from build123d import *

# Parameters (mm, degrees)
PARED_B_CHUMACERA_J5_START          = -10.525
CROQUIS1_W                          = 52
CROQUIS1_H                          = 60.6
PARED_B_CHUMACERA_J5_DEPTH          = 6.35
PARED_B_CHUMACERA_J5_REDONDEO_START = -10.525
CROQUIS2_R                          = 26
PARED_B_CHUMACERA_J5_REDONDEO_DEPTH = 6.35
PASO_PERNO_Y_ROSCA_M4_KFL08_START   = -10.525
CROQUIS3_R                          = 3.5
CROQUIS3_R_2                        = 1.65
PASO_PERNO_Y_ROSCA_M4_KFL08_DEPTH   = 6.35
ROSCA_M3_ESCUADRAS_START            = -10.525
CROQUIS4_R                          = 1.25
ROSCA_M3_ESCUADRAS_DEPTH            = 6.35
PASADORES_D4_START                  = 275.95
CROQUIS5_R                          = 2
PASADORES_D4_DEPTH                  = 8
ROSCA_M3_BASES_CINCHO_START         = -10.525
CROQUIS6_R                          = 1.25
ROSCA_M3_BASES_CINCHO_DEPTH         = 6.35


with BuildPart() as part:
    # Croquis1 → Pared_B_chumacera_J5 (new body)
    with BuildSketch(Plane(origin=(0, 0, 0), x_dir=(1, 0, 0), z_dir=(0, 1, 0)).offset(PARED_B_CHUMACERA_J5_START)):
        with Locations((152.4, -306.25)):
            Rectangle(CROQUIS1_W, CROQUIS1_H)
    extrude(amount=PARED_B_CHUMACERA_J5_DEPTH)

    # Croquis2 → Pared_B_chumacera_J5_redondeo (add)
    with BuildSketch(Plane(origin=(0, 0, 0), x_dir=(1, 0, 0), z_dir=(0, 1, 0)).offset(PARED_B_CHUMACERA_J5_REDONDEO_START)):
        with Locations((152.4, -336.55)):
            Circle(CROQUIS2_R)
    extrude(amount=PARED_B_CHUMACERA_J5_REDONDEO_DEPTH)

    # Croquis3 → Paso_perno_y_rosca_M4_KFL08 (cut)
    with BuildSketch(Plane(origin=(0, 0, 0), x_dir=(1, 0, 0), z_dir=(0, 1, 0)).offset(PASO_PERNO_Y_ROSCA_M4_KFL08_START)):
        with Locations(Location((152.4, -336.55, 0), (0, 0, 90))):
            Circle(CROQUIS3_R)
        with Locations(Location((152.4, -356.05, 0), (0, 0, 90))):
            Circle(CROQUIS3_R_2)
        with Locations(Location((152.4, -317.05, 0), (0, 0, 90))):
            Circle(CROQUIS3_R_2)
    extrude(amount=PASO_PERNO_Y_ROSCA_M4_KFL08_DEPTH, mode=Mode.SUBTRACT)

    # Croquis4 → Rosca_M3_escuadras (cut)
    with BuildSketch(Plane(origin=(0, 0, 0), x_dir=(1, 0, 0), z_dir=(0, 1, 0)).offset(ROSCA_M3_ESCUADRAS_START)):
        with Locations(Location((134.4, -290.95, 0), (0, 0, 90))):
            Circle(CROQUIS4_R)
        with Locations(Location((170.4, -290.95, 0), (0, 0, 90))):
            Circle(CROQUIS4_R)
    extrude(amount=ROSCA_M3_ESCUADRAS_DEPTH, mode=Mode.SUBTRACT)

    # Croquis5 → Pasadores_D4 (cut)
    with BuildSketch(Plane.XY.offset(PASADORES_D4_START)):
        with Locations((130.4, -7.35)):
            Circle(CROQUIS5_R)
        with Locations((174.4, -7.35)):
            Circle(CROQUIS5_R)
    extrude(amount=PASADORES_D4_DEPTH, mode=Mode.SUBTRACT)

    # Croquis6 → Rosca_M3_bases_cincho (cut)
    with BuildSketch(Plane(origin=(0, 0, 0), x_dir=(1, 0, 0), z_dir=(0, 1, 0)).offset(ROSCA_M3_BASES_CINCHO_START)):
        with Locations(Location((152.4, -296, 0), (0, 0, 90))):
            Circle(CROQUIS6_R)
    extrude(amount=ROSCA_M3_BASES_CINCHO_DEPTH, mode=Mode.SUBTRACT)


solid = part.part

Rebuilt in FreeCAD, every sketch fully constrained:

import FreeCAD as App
import Part
import Sketcher
from FreeCAD import Vector
Q = App.Units.Quantity

doc = App.newDocument("Part")
body = doc.addObject("PartDesign::Body", "Body")

# Sketch on XZ plane
sketch1 = body.newObject("Sketcher::SketchObject", "Sketch")
sketch1.AttachmentSupport = (doc.getObject("XZ_Plane"), [""])
sketch1.MapMode = "FlatFace"
sketch1.AttachmentOffset = App.Placement(Vector(0, 0, 10.525), App.Rotation())
sketch1.addGeometry(Part.LineSegment(Vector(126, 276, 0), Vector(126, 337, 0)), False)
sketch1.addGeometry(Part.LineSegment(Vector(126, 337, 0), Vector(178, 337, 0)), False)
sketch1.addGeometry(Part.LineSegment(Vector(178, 337, 0), Vector(178, 276, 0)), False)
sketch1.addGeometry(Part.LineSegment(Vector(178, 276, 0), Vector(126, 276, 0)), False)
sketch1.addConstraint(Sketcher.Constraint("Coincident", 0, 2, 1, 1))
sketch1.addConstraint(Sketcher.Constraint("Coincident", 1, 2, 2, 1))
sketch1.addConstraint(Sketcher.Constraint("Coincident", 2, 2, 3, 1))
sketch1.addConstraint(Sketcher.Constraint("Coincident", 3, 2, 0, 1))
sketch1.addConstraint(Sketcher.Constraint("Vertical", 0))
sketch1.addConstraint(Sketcher.Constraint("Horizontal", 1))
sketch1.addConstraint(Sketcher.Constraint("Vertical", 2))
sketch1.addConstraint(Sketcher.Constraint("Horizontal", 3))
sketch1.addConstraint(Sketcher.Constraint("DistanceX", 1, 1, 1, 2, Q("52 mm")))
sketch1.addConstraint(Sketcher.Constraint("DistanceY", 0, 1, 0, 2, Q("60.6 mm")))
sketch1.addConstraint(Sketcher.Constraint("DistanceX", -1, 1, 0, 2, Q("126.4 mm")))
sketch1.addConstraint(Sketcher.Constraint("DistanceY", -1, 1, 0, 2, Q("336.55 mm")))
pad1 = body.newObject("PartDesign::Pad", "Pad")
pad1.Profile = sketch1
pad1.Length = 6.35
pad1.Reversed = True

# Sketch on XZ plane
sketch2 = body.newObject("Sketcher::SketchObject", "Sketch001")
sketch2.AttachmentSupport = (doc.getObject("XZ_Plane"), [""])
sketch2.MapMode = "FlatFace"
sketch2.AttachmentOffset = App.Placement(Vector(0, 0, 10.525), App.Rotation())
sketch2.addGeometry(Part.Circle(Vector(152, 337, 0), Vector(0, 0, 1), 26), False)
sketch2.addConstraint(Sketcher.Constraint("Diameter", 0, Q("52 mm")))
sketch2.addConstraint(Sketcher.Constraint("DistanceX", -1, 1, 0, 3, Q("152.4 mm")))
sketch2.addConstraint(Sketcher.Constraint("DistanceY", -1, 1, 0, 3, Q("336.55 mm")))
pad2 = body.newObject("PartDesign::Pad", "Pad001")
pad2.Profile = sketch2
pad2.Length = 6.35
pad2.Reversed = True

# Sketch on XZ plane
sketch3 = body.newObject("Sketcher::SketchObject", "Sketch002")
sketch3.AttachmentSupport = (doc.getObject("XZ_Plane"), [""])
sketch3.MapMode = "FlatFace"
sketch3.AttachmentOffset = App.Placement(Vector(0, 0, 10.525), App.Rotation())
sketch3.addGeometry(Part.Circle(Vector(152.4, 336.6, 0), Vector(0, 0, 1), 3.5), False)
sketch3.addGeometry(Part.Circle(Vector(152.4, 356.1, 0), Vector(0, 0, 1), 1.6), False)
sketch3.addGeometry(Part.Circle(Vector(152.4, 317.1, 0), Vector(0, 0, 1), 1.6), False)
sketch3.addConstraint(Sketcher.Constraint("Equal", 1, 2))
sketch3.addConstraint(Sketcher.Constraint("Vertical", 0, 3, 1, 3))
sketch3.addConstraint(Sketcher.Constraint("Vertical", 1, 3, 2, 3))
sketch3.addConstraint(Sketcher.Constraint("Diameter", 0, Q("7 mm")))
sketch3.addConstraint(Sketcher.Constraint("Diameter", 1, Q("3.3 mm")))
sketch3.addConstraint(Sketcher.Constraint("DistanceY", 2, 3, 1, 3, Q("39 mm")))
sketch3.addConstraint(Sketcher.Constraint("DistanceX", -1, 1, 0, 3, Q("152.4 mm")))
sketch3.addConstraint(Sketcher.Constraint("DistanceY", 0, 3, 1, 3, Q("19.5 mm")))
sketch3.addConstraint(Sketcher.Constraint("DistanceY", -1, 1, 0, 3, Q("336.55 mm")))
pocket1 = body.newObject("PartDesign::Pocket", "Pocket")
pocket1.Profile = sketch3
pocket1.Length = 6.35

# Sketch on XZ plane
sketch4 = body.newObject("Sketcher::SketchObject", "Sketch003")
sketch4.AttachmentSupport = (doc.getObject("XZ_Plane"), [""])
sketch4.MapMode = "FlatFace"
sketch4.AttachmentOffset = App.Placement(Vector(0, 0, 10.525), App.Rotation())
sketch4.addGeometry(Part.Circle(Vector(134.4, 290.9, 0), Vector(0, 0, 1), 1.2), False)
sketch4.addGeometry(Part.Circle(Vector(170.4, 290.9, 0), Vector(0, 0, 1), 1.2), False)
sketch4.addConstraint(Sketcher.Constraint("Equal", 0, 1))
sketch4.addConstraint(Sketcher.Constraint("Horizontal", 0, 3, 1, 3))
sketch4.addConstraint(Sketcher.Constraint("Diameter", 0, Q("2.5 mm")))
sketch4.addConstraint(Sketcher.Constraint("DistanceX", 0, 3, 1, 3, Q("36 mm")))
sketch4.addConstraint(Sketcher.Constraint("DistanceX", -1, 1, 0, 3, Q("134.4 mm")))
sketch4.addConstraint(Sketcher.Constraint("DistanceY", -1, 1, 0, 3, Q("290.95 mm")))
pocket2 = body.newObject("PartDesign::Pocket", "Pocket001")
pocket2.Profile = sketch4
pocket2.Length = 6.35

# Sketch on XY plane
sketch5 = body.newObject("Sketcher::SketchObject", "Sketch004")
sketch5.AttachmentSupport = (doc.getObject("XY_Plane"), [""])
sketch5.MapMode = "FlatFace"
sketch5.AttachmentOffset = App.Placement(Vector(0, 0, 275.95), App.Rotation())
sketch5.addGeometry(Part.Circle(Vector(130.4, -7.3, 0), Vector(0, 0, 1), 2), False)
sketch5.addGeometry(Part.Circle(Vector(174.4, -7.3, 0), Vector(0, 0, 1), 2), False)
sketch5.addConstraint(Sketcher.Constraint("Equal", 0, 1))
sketch5.addConstraint(Sketcher.Constraint("Horizontal", 0, 3, 1, 3))
sketch5.addConstraint(Sketcher.Constraint("Diameter", 0, Q("4 mm")))
sketch5.addConstraint(Sketcher.Constraint("DistanceX", 0, 3, 1, 3, Q("44 mm")))
sketch5.addConstraint(Sketcher.Constraint("DistanceX", -1, 1, 0, 3, Q("130.4 mm")))
sketch5.addConstraint(Sketcher.Constraint("DistanceY", 0, 3, -1, 1, Q("7.35 mm")))
pocket3 = body.newObject("PartDesign::Pocket", "Pocket002")
pocket3.Profile = sketch5
pocket3.Length = 8
pocket3.Reversed = True

# Sketch on XZ plane
sketch6 = body.newObject("Sketcher::SketchObject", "Sketch005")
sketch6.AttachmentSupport = (doc.getObject("XZ_Plane"), [""])
sketch6.MapMode = "FlatFace"
sketch6.AttachmentOffset = App.Placement(Vector(0, 0, 10.525), App.Rotation())
sketch6.addGeometry(Part.Circle(Vector(152.4, 296, 0), Vector(0, 0, 1), 1.2), False)
sketch6.addConstraint(Sketcher.Constraint("Diameter", 0, Q("2.5 mm")))
sketch6.addConstraint(Sketcher.Constraint("DistanceY", -1, 1, 0, 3, Q("296 mm")))
sketch6.addConstraint(Sketcher.Constraint("DistanceX", -1, 1, 0, 3, Q("152.4 mm")))
pocket4 = body.newObject("PartDesign::Pocket", "Pocket003")
pocket4.Profile = sketch6
pocket4.Length = 6.35

doc.recompute()
